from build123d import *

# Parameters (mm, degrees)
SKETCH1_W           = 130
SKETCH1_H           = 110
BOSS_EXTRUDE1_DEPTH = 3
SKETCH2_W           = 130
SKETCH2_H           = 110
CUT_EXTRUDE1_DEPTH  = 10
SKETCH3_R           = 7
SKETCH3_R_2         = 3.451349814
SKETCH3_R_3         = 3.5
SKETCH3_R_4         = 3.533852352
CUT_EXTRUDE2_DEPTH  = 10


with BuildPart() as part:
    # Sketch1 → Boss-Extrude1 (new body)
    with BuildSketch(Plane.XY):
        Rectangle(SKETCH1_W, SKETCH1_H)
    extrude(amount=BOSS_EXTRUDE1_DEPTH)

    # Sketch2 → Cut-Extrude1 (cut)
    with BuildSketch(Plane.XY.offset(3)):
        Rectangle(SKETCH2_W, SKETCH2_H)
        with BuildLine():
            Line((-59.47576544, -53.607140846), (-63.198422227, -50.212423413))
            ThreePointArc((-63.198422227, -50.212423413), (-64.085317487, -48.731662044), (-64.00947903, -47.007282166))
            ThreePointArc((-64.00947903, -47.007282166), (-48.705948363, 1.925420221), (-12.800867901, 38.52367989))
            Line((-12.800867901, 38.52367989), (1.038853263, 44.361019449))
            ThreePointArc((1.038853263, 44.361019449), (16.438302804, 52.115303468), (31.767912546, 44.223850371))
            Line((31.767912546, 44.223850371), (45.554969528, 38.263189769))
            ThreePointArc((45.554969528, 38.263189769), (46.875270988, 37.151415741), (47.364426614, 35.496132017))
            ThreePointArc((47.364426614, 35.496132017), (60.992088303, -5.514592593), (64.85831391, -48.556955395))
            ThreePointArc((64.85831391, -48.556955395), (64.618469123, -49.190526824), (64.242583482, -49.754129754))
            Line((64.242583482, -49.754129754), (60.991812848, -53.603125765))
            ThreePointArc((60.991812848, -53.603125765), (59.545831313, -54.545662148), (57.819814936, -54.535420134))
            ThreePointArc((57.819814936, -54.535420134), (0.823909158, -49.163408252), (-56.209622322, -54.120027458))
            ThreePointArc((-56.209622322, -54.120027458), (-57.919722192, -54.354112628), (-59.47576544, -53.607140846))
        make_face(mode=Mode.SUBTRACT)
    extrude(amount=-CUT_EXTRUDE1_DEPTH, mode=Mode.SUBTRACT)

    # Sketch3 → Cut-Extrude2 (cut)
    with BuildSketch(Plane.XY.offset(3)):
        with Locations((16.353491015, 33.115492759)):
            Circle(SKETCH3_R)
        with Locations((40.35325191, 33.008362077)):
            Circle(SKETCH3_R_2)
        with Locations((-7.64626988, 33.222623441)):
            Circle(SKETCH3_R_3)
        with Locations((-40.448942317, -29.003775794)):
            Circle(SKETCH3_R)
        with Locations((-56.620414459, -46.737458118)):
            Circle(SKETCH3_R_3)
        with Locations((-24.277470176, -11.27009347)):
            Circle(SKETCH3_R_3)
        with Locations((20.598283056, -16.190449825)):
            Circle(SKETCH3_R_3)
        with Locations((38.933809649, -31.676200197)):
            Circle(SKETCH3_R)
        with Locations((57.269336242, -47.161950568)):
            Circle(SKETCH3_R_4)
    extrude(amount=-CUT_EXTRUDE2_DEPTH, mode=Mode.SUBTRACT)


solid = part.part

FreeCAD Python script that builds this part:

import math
import FreeCAD as App
import Part
import Sketcher

V = App.Vector


def add_polygon(sketch, points):
    """Adds a closed chain of lines whose ends are joined by coincident constraints."""
    first, n = sketch.GeometryCount, len(points)
    for a, b in zip(points, points[1:] + points[:1]):
        sketch.addGeometry(Part.LineSegment(App.Vector(*a, 0), App.Vector(*b, 0)), False)
    for i in range(n):
        sketch.addConstraint(Sketcher.Constraint("Coincident", first + i, 2, first + (i + 1) % n, 1))

doc = App.newDocument("Part")
body = doc.addObject("PartDesign::Body", "Body")

# Sketch on XY plane
sketch1 = body.newObject("Sketcher::SketchObject", "Sketch")
sketch1.AttachmentSupport = (doc.getObject("XY_Plane"), [""])
sketch1.MapMode = "FlatFace"
add_polygon(sketch1, [(-65, 55), (-65, -55), (65, -55), (65, 55)])  # lines 0-3
sketch1.addConstraint([
    Sketcher.Constraint("Vertical", 0),
    Sketcher.Constraint("Horizontal", 1),
    Sketcher.Constraint("Vertical", 2),
    Sketcher.Constraint("Horizontal", 3),
    Sketcher.Constraint("Symmetric", 0, 2, 2, 2, -1, 1),
    Sketcher.Constraint("DistanceX", 1, 1, 1, 2, 130.0),
    Sketcher.Constraint("DistanceY", 0, 2, 0, 1, 110.0),
])
pad1 = body.newObject("PartDesign::Pad", "Pad")
pad1.Profile = sketch1
pad1.Length = 3

# Sketch on XY plane
sketch2 = body.newObject("Sketcher::SketchObject", "Sketch001")
sketch2.AttachmentSupport = (doc.getObject("XY_Plane"), [""])
sketch2.MapMode = "FlatFace"
sketch2.AttachmentOffset = App.Placement(V(0, 0, 3), App.Rotation())
add_polygon(sketch2, [(-65, 55), (-65, -55), (65, -55), (65, 55)])  # lines 0-3
sketch2.addGeometry(Part.ArcOfCircle(Part.Circle(V(-57.454331, -51.390431, 0), V(0, 0, 1), 3), math.radians(-132.361912), math.radians(-65.48679)), False)  # 4
sketch2.addGeometry(Part.LineSegment(V(-59.475765, -53.607141, 0), V(-63.198422, -50.212423, 0)), False)  # 5
sketch2.addGeometry(Part.ArcOfCircle(Part.Circle(V(-61.176988, -47.995713, 0), V(0, 0, 1), 3), math.radians(160.762966), math.radians(227.638088)), False)  # 6
sketch2.addGeometry(Part.ArcOfCircle(Part.Circle(V(45.218652, -54.308582, 0), V(0, 0, 1), 109.471885), math.radians(122.005097), math.radians(176.175781)), False)  # 7
sketch2.addGeometry(Part.LineSegment(V(-12.800868, 38.52368, 0), V(1.038853, 44.361019, 0)), False)  # 8
sketch2.addGeometry(Part.ArcOfCircle(Part.Circle(V(16.353491, 33.115493, 0), V(0, 0, 1), 19), math.radians(35.778296), math.radians(143.710191)), False)  # 9
sketch2.addGeometry(Part.LineSegment(V(31.767913, 44.22385, 0), V(45.55497, 38.26319, 0)), False)  # 10
sketch2.addGeometry(Part.ArcOfCircle(Part.Circle(V(44.364457, 35.509523, 0), V(0, 0, 1), 3), math.radians(-0.255757), math.radians(66.619365)), False)  # 11
sketch2.addGeometry(Part.ArcOfCircle(Part.Circle(V(-122.387874, -43.681286, 0), V(0, 0, 1), 187.309656), math.radians(-1.491577), math.radians(25.005716)), False)  # 12
sketch2.addGeometry(Part.ArcOfCircle(Part.Circle(V(61.950643, -47.818411, 0), V(0, 0, 1), 3), math.radians(-40.183642), math.radians(-14.251666)), False)  # 13
sketch2.addGeometry(Part.LineSegment(V(64.242583, -49.75413, 0), V(60.991813, -53.603126, 0)), False)  # 14
sketch2.addGeometry(Part.ArcOfCircle(Part.Circle(V(58.699872, -51.667407, 0), V(0, 0, 1), 3), math.radians(-107.058764), math.radians(-40.183642)), False)  # 15
sketch2.addGeometry(Part.ArcOfCircle(Part.Circle(V(-0.331995, -366.470539, 0), V(0, 0, 1), 317.309236), math.radians(79.439981), math.radians(100.142581)), False)  # 16
sketch2.addConstraint([
    Sketcher.Constraint("Coincident", 4, 1, 5, 1),
    Sketcher.Constraint("Coincident", 5, 2, 6, 2),
    Sketcher.Constraint("Coincident", 6, 1, 7, 2),
    Sketcher.Constraint("Coincident", 7, 1, 8, 1),
    Sketcher.Constraint("Coincident", 8, 2, 9, 2),
    Sketcher.Constraint("Coincident", 9, 1, 10, 1),
    Sketcher.Constraint("Coincident", 10, 2, 11, 2),
    Sketcher.Constraint("Coincident", 11, 1, 12, 2),
    Sketcher.Constraint("Coincident", 12, 1, 13, 2),
    Sketcher.Constraint("Coincident", 13, 1, 14, 1),
    Sketcher.Constraint("Coincident", 14, 2, 15, 2),
    Sketcher.Constraint("Coincident", 15, 1, 16, 1),
    Sketcher.Constraint("Coincident", 16, 2, 4, 2),
    Sketcher.Constraint("Vertical", 0),
    Sketcher.Constraint("Horizontal", 1),
    Sketcher.Constraint("Vertical", 2),
    Sketcher.Constraint("Horizontal", 3),
    Sketcher.Constraint("Radius", 4, 3.0),
    Sketcher.Constraint("Radius", 6, 3.0),
    Sketcher.Constraint("Radius", 9, 19.0),
    Sketcher.Constraint("Radius", 11, 3.0),
    Sketcher.Constraint("Radius", 13, 3.0),
    Sketcher.Constraint("Radius", 15, 3.0),
    Sketcher.Constraint("DistanceX", 1, 1, 1, 2, 130.0),
    Sketcher.Constraint("DistanceY", 0, 2, 0, 1, 110.0),
    Sketcher.Constraint("DistanceX", 0, 2, -1, 1, 65.0),
    Sketcher.Constraint("DistanceY", 0, 2, -1, 1, 55.0),
    Sketcher.Constraint("Radius", 7, 109.471885),
    Sketcher.Constraint("Radius", 12, 187.309656),
    Sketcher.Constraint("Radius", 16, 317.309236),
    Sketcher.Constraint("Distance", 8, 15.0204),
    Sketcher.Constraint("Distance", 10, 15.0204),
    Sketcher.Constraint("DistanceY", 15, 3, 9, 3, 84.7829),
    Sketcher.Constraint("DistanceX", 14, 2, 12, 1, 3.866501),
    Sketcher.Constraint("DistanceX", 5, 2, 16, 2, 6.9888),
    Sketcher.Constraint("DistanceX", 4, 3, -1, 1, 57.454331),
    Sketcher.Constraint("DistanceY", 4, 3, -1, 1, 51.390431),
    Sketcher.Constraint("DistanceX", 6, 3, -1, 1, 61.176988),
    Sketcher.Constraint("DistanceX", -1, 1, 7, 3, 45.218652),
    Sketcher.Constraint("DistanceX", -1, 1, 9, 3, 16.353491),
    Sketcher.Constraint("DistanceY", 13, 3, -1, 1, 47.818411),
    Sketcher.Constraint("DistanceY", 16, 3, -1, 1, 366.470539),
    Sketcher.Constraint("DistanceY", 4, 1, -1, 1, 53.607141),
    Sketcher.Constraint("DistanceX", 6, 1, -1, 1, 64.009479),
    Sketcher.Constraint("DistanceY", -1, 1, 7, 1, 38.52368),
    Sketcher.Constraint("DistanceY", -1, 1, 8, 2, 44.361019),
    Sketcher.Constraint("DistanceY", -1, 1, 9, 1, 44.22385),
    Sketcher.Constraint("DistanceX", -1, 1, 10, 2, 45.55497),
    Sketcher.Constraint("DistanceY", -1, 1, 10, 2, 38.26319),
    Sketcher.Constraint("DistanceY", 13, 1, -1, 1, 49.75413),
    Sketcher.Constraint("DistanceY", 15, 1, -1, 1, 54.53542),
    Sketcher.Constraint("DistanceY", 9, 3, 11, 3, 2.394031),
    Sketcher.Constraint("DistanceY", 12, 3, 9, 3, 76.796779),
    Sketcher.Constraint("DistanceX", 12, 3, 11, 3, 166.752331),
    Sketcher.Constraint("DistanceX", 7, 3, 13, 3, 16.731991),
    Sketcher.Constraint("DistanceX", 15, 3, 13, 3, 3.250771),
])
pocket1 = body.newObject("PartDesign::Pocket", "Pocket")
pocket1.Profile = sketch2
pocket1.Length = 10

# Sketch on XY plane
sketch3 = body.newObject("Sketcher::SketchObject", "Sketch002")
sketch3.AttachmentSupport = (doc.getObject("XY_Plane"), [""])
sketch3.MapMode = "FlatFace"
sketch3.AttachmentOffset = App.Placement(V(0, 0, 3), App.Rotation())
sketch3.addGeometry([
    Part.Circle(V(16.353491, 33.115493, 0), V(0, 0, 1), 7),  # 0
    Part.Circle(V(40.353252, 33.008362, 0), V(0, 0, 1), 3.45135),  # 1
    Part.Circle(V(-7.64627, 33.222623, 0), V(0, 0, 1), 3.5),  # 2
    Part.Circle(V(-40.448942, -29.003776, 0), V(0, 0, 1), 7),  # 3
    Part.Circle(V(-56.620414, -46.737458, 0), V(0, 0, 1), 3.5),  # 4
    Part.Circle(V(-24.27747, -11.270093, 0), V(0, 0, 1), 3.5),  # 5
    Part.Circle(V(20.598283, -16.19045, 0), V(0, 0, 1), 3.5),  # 6
    Part.Circle(V(38.93381, -31.6762, 0), V(0, 0, 1), 7),  # 7
    Part.Circle(V(57.269336, -47.161951, 0), V(0, 0, 1), 3.533852),  # 8
], False)
sketch3.addConstraint([
    Sketcher.Constraint("Equal", 0, 3),
    Sketcher.Constraint("Equal", 2, 4),
    Sketcher.Constraint("Equal", 4, 5),
    Sketcher.Constraint("Equal", 5, 6),
    Sketcher.Constraint("Equal", 3, 7),
    Sketcher.Constraint("Diameter", 0, 14.0),
    Sketcher.Constraint("Diameter", 2, 7.0),
    Sketcher.Constraint("Diameter", 1, 6.9027),
    Sketcher.Constraint("Diameter", 8, 7.067705),
    Sketcher.Constraint("DistanceY", 7, 3, -1, 1, 31.6762),
    Sketcher.Constraint("DistanceY", 3, 3, 2, 3, 62.226399),
    Sketcher.Constraint("DistanceX", 5, 3, 2, 3, 16.6312),
    Sketcher.Constraint("DistanceY", 8, 3, 6, 3, 30.971501),
    Sketcher.Constraint("DistanceX", -1, 1, 0, 3, 16.353491),
    Sketcher.Constraint("DistanceX", -1, 1, 1, 3, 40.353252),
    Sketcher.Constraint("DistanceX", 2, 3, -1, 1, 7.64627),
    Sketcher.Constraint("DistanceY", 4, 3, -1, 1, 46.737458),
    Sketcher.Constraint("DistanceY", 6, 3, -1, 1, 16.19045),
    Sketcher.Constraint("DistanceX", -1, 1, 7, 3, 38.93381),
    Sketcher.Constraint("DistanceY", 1, 3, 0, 3, 0.107131),
    Sketcher.Constraint("DistanceY", 0, 3, 2, 3, 0.107131),
    Sketcher.Constraint("DistanceY", 4, 3, 2, 3, 79.960082),
    Sketcher.Constraint("DistanceX", 6, 3, 1, 3, 19.754969),
    Sketcher.Constraint("DistanceX", 3, 3, 7, 3, 79.382752),
    Sketcher.Constraint("DistanceX", 4, 3, -1, 1, 56.620414),
    Sketcher.Constraint("DistanceY", 5, 3, -1, 1, 11.270093),
    Sketcher.Constraint("DistanceX", -1, 1, 8, 3, 57.269336),
])
pocket2 = body.newObject("PartDesign::Pocket", "Pocket001")
pocket2.Profile = sketch3
pocket2.Length = 10

doc.recompute()
